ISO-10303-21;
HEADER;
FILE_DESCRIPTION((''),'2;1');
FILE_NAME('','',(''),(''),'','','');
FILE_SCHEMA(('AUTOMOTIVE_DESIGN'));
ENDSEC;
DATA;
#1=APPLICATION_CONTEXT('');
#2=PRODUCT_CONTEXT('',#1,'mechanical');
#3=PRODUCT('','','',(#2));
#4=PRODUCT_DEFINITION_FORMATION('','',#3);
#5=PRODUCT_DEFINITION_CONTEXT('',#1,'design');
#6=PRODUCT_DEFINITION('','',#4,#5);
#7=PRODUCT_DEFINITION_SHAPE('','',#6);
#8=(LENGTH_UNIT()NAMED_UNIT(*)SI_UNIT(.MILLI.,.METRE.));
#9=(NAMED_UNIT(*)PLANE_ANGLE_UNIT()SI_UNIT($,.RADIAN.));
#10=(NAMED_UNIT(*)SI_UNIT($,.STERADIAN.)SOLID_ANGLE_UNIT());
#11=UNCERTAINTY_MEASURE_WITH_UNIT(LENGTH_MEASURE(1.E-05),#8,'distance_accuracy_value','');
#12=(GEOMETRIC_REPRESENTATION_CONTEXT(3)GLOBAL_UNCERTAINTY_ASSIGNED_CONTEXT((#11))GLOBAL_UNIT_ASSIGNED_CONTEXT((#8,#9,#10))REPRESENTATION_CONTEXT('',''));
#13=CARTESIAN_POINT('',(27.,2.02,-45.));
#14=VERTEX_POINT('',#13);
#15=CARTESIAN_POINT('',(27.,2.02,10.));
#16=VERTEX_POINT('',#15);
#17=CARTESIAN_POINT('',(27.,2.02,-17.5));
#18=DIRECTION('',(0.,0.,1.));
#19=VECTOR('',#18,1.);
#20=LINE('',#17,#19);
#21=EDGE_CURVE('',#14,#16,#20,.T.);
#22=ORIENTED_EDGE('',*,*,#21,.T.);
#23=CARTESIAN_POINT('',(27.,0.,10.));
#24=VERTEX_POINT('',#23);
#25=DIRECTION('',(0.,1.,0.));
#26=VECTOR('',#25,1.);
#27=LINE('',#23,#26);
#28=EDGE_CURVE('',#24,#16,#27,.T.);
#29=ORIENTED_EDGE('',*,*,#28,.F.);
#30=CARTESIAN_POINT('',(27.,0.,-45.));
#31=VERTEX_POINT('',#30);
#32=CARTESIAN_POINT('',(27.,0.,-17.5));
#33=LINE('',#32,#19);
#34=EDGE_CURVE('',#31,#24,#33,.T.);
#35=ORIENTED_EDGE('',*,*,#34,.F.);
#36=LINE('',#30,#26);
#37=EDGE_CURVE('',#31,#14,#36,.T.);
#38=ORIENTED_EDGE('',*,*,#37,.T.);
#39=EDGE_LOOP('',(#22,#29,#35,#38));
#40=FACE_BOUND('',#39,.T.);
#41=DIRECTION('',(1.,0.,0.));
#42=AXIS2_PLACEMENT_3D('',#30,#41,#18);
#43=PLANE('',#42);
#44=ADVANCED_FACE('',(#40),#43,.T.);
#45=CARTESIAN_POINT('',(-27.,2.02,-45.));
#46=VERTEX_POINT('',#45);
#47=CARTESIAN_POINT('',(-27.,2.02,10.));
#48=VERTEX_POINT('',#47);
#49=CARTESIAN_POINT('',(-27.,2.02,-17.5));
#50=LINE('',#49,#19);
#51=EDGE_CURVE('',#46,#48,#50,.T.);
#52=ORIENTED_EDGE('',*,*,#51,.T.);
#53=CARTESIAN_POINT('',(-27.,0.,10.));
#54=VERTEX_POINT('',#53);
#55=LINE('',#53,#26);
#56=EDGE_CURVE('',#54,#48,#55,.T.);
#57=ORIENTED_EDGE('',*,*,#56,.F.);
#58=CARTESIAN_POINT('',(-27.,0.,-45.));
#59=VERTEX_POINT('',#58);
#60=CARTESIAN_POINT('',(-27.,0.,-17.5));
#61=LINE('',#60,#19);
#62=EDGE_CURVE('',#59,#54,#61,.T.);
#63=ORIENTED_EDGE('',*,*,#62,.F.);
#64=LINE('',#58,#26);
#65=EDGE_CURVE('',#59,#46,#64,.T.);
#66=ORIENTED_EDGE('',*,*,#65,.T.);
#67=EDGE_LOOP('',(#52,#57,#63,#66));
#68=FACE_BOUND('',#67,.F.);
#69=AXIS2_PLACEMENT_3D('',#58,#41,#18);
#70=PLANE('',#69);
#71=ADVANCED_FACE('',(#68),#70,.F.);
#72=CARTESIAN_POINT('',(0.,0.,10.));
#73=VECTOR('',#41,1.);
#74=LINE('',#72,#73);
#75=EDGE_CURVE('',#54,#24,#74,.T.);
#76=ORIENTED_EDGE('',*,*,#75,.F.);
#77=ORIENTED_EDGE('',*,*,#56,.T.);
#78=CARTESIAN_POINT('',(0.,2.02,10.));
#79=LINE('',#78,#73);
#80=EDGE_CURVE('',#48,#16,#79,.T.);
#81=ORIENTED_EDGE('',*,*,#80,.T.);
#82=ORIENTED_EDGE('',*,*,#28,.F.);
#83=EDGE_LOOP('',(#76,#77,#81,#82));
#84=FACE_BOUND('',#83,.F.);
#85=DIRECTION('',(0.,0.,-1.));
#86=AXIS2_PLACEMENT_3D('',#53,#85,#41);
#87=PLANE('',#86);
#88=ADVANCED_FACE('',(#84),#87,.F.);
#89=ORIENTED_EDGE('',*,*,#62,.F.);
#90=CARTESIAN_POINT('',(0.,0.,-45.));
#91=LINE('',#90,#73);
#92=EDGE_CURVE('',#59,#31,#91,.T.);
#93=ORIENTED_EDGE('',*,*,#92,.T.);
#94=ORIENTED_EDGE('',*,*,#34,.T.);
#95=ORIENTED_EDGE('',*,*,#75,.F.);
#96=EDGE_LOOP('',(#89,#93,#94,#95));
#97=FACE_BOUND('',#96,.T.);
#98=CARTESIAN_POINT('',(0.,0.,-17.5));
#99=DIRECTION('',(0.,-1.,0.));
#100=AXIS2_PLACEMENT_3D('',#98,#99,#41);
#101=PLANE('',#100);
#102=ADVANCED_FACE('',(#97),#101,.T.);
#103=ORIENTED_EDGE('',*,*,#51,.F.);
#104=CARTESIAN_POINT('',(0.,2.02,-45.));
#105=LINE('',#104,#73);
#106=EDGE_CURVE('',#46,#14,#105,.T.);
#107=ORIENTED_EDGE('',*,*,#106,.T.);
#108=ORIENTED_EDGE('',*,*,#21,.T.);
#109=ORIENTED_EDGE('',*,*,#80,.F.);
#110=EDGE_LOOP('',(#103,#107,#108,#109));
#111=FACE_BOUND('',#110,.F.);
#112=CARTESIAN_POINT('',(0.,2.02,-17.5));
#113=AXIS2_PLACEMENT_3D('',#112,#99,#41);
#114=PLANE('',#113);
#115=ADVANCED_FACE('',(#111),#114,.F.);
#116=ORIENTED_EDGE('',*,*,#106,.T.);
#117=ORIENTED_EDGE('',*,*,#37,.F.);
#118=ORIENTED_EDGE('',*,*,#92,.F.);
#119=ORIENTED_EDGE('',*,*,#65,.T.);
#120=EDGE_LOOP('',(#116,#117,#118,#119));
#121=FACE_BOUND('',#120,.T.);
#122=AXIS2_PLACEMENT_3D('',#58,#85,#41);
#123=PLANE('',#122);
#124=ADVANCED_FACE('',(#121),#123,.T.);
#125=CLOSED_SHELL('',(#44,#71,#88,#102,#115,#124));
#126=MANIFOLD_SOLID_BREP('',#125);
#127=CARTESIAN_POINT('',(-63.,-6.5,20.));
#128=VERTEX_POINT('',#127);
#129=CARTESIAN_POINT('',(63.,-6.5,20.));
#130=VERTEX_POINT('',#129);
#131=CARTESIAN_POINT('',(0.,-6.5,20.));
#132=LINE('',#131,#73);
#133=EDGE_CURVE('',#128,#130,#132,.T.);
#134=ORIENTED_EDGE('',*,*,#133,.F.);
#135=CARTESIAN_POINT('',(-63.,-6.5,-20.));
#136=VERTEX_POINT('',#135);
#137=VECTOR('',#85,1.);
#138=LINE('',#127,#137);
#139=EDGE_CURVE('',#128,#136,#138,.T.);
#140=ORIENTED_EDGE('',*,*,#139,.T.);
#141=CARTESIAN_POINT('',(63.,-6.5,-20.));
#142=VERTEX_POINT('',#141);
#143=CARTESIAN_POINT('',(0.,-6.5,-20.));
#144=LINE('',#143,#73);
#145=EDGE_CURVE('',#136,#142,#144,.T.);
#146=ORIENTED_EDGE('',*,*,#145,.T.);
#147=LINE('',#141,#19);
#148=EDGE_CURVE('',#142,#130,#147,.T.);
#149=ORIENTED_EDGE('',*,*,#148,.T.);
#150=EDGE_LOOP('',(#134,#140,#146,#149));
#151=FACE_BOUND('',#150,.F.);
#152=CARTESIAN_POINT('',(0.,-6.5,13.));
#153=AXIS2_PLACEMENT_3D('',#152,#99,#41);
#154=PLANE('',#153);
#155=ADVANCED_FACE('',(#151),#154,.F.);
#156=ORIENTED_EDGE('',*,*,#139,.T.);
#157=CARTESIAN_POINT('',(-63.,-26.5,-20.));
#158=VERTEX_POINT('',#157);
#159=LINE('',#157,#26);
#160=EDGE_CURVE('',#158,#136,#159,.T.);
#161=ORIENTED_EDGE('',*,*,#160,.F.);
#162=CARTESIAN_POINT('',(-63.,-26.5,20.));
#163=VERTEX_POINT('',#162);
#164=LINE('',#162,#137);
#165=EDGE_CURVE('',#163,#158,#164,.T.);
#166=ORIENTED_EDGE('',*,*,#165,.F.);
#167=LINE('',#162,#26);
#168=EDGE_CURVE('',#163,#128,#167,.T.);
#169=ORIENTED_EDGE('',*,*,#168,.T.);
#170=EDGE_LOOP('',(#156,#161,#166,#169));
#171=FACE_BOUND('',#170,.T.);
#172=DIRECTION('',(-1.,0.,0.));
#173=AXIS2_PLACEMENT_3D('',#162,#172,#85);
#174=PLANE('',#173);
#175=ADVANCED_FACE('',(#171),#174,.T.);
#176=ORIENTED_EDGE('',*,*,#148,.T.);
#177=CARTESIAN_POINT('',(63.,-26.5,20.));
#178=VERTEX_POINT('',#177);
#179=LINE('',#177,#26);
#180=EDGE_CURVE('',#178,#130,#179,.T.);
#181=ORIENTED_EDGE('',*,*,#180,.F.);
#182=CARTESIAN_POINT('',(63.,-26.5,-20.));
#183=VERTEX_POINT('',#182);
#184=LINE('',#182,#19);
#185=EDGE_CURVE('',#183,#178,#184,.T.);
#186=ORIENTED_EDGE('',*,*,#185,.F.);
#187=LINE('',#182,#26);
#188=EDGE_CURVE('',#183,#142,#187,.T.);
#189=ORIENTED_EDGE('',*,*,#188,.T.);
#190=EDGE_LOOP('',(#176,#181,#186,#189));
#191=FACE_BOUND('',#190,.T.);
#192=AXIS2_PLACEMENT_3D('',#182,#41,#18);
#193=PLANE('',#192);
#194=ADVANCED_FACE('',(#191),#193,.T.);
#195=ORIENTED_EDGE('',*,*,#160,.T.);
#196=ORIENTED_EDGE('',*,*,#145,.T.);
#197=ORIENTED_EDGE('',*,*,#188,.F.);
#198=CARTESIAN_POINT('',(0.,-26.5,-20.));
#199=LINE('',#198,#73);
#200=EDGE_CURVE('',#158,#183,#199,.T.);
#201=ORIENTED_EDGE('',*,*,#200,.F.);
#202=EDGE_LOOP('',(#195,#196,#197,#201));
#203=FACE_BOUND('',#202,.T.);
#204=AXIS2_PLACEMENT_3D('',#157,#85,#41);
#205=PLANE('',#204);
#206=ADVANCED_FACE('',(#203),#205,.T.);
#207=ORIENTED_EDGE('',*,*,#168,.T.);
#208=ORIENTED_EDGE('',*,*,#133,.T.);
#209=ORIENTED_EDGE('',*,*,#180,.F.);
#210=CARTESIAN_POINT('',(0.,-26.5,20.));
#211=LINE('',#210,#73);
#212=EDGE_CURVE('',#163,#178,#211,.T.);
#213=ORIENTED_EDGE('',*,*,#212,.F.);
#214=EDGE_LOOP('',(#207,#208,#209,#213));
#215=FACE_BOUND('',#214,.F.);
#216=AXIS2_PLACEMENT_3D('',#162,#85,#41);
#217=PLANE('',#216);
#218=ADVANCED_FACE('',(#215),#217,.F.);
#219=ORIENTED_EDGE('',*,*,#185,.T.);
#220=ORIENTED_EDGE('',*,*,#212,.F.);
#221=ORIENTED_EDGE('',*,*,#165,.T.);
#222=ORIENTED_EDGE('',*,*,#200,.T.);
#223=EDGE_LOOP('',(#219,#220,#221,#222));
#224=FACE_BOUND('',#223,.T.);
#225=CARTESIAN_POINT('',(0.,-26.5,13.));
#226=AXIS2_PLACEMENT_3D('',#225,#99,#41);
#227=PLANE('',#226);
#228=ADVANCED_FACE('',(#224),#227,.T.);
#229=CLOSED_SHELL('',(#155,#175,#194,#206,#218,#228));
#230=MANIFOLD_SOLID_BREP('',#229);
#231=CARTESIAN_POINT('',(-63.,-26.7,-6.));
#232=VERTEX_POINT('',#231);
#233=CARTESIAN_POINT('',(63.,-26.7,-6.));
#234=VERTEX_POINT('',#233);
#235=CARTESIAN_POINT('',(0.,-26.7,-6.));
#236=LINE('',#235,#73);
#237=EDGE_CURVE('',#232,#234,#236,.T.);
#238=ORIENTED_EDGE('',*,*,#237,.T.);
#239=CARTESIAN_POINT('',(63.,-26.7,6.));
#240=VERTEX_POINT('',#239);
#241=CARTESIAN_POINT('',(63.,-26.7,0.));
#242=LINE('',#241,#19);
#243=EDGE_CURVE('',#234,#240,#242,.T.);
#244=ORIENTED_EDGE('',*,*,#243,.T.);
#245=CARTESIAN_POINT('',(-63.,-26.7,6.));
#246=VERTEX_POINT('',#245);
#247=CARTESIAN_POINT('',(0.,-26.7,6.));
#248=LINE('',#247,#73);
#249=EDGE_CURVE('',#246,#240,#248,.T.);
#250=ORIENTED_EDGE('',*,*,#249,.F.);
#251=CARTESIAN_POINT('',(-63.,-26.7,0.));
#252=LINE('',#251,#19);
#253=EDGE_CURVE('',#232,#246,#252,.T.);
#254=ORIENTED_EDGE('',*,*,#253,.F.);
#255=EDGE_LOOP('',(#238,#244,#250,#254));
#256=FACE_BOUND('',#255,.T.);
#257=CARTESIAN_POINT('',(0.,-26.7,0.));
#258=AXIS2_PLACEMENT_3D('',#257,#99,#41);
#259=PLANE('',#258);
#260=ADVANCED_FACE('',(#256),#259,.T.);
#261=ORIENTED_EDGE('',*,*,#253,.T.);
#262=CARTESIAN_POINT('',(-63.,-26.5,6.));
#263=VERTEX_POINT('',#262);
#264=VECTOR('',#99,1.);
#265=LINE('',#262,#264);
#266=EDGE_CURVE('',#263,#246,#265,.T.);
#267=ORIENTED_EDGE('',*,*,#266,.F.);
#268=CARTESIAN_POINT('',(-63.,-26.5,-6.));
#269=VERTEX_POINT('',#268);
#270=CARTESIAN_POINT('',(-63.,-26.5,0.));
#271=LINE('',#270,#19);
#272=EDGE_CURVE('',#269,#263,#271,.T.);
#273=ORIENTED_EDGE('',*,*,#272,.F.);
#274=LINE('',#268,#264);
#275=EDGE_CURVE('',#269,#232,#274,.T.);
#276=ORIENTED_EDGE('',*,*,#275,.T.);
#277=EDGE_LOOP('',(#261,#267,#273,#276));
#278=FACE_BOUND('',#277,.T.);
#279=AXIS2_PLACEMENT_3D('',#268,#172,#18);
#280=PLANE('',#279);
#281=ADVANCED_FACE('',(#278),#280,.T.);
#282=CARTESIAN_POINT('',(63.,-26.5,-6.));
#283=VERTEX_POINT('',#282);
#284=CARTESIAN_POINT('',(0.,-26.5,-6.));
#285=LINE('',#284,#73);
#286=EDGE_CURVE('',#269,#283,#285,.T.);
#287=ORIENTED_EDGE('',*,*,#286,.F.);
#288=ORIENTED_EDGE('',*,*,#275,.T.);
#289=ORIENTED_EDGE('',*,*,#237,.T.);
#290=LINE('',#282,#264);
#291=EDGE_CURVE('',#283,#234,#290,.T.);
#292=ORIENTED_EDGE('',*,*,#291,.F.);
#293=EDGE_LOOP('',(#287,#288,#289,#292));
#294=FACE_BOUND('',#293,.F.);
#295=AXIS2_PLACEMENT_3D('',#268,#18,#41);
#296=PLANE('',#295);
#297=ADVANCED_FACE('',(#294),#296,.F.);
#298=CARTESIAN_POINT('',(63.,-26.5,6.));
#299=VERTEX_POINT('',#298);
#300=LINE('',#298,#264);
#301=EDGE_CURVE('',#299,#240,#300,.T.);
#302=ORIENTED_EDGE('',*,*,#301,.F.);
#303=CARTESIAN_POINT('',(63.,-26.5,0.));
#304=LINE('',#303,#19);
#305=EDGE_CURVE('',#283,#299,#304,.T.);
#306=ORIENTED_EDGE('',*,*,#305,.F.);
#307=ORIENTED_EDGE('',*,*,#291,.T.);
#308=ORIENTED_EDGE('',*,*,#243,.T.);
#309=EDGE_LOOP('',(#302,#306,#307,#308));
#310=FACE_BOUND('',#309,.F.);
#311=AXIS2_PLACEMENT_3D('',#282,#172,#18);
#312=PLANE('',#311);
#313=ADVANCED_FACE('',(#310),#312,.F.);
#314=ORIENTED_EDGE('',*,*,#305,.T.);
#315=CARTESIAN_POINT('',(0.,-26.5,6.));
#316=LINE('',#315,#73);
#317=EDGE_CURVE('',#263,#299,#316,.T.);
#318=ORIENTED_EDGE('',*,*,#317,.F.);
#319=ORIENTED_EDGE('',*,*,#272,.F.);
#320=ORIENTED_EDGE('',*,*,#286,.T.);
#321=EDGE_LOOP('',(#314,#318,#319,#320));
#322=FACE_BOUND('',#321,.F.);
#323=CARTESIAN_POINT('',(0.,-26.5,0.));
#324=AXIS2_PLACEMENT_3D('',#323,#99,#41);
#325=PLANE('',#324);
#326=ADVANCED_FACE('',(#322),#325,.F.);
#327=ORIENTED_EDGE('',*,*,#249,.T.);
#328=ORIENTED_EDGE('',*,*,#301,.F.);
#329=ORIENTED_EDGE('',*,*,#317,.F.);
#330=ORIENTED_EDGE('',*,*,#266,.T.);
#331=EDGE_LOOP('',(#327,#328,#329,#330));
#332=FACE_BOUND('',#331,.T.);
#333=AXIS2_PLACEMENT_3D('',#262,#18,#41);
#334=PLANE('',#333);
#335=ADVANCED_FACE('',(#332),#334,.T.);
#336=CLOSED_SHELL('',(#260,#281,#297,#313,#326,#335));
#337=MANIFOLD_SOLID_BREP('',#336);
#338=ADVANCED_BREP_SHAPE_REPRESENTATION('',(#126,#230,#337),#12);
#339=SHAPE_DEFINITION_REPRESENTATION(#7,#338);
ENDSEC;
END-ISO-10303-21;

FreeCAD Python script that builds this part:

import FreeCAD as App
import Part
import Sketcher
from FreeCAD import Vector

doc = App.newDocument("Part")
body = doc.addObject("PartDesign::Body", "Body")

sketch1 = body.newObject("Sketcher::SketchObject", "Sketch")
sketch1.AttachmentSupport = (doc.getObject("XZ_Plane"), [""])
sketch1.MapMode = "FlatFace"
sketch1.addGeometry([
    Part.LineSegment(Vector(-27, 10, 0), Vector(-27, -45, 0)),
    Part.LineSegment(Vector(-27, -45, 0), Vector(27, -45, 0)),
    Part.LineSegment(Vector(27, -45, 0), Vector(27, 10, 0)),
    Part.LineSegment(Vector(27, 10, 0), Vector(-27, 10, 0)),
], False)
sketch1.addConstraint([
    Sketcher.Constraint("Coincident", 0, 2, 1, 1),
    Sketcher.Constraint("Coincident", 1, 2, 2, 1),
    Sketcher.Constraint("Coincident", 2, 2, 3, 1),
    Sketcher.Constraint("Coincident", 3, 2, 0, 1),
    Sketcher.Constraint("Vertical", 0),
    Sketcher.Constraint("Horizontal", 1),
    Sketcher.Constraint("Vertical", 2),
    Sketcher.Constraint("Horizontal", 3),
    Sketcher.Constraint("DistanceX", 1, 1, 1, 2, 54.0),
    Sketcher.Constraint("DistanceY", 0, 2, 0, 1, 55.0),
    Sketcher.Constraint("DistanceX", 0, 2, -1, 1, 27.0),
    Sketcher.Constraint("DistanceY", 0, 2, -1, 1, 45.0),
])
pad1 = body.newObject("PartDesign::Pad", "Pad")
pad1.Profile = sketch1
pad1.Length = 2.02
pad1.Reversed = True
body2 = doc.addObject("PartDesign::Body", "Body001")

sketch2 = body2.newObject("Sketcher::SketchObject", "Sketch001")
sketch2.AttachmentSupport = (doc.getObject("XZ_Plane001"), [""])
sketch2.MapMode = "FlatFace"
sketch2.AttachmentOffset = App.Placement(Vector(0, 0, 26.5), App.Rotation())
sketch2.addGeometry([
    Part.LineSegment(Vector(-63, 20, 0), Vector(-63, -20, 0)),
    Part.LineSegment(Vector(-63, -20, 0), Vector(63, -20, 0)),
    Part.LineSegment(Vector(63, -20, 0), Vector(63, 20, 0)),
    Part.LineSegment(Vector(63, 20, 0), Vector(-63, 20, 0)),
], False)
sketch2.addConstraint([
    Sketcher.Constraint("Coincident", 0, 2, 1, 1),
    Sketcher.Constraint("Coincident", 1, 2, 2, 1),
    Sketcher.Constraint("Coincident", 2, 2, 3, 1),
    Sketcher.Constraint("Coincident", 3, 2, 0, 1),
    Sketcher.Constraint("Vertical", 0),
    Sketcher.Constraint("Horizontal", 1),
    Sketcher.Constraint("Vertical", 2),
    Sketcher.Constraint("Horizontal", 3),
    Sketcher.Constraint("Symmetric", 0, 2, 2, 2, -1, 1),
    Sketcher.Constraint("DistanceX", 1, 1, 1, 2, 126.0),
    Sketcher.Constraint("DistanceY", 0, 2, 0, 1, 40.0),
])
pad2 = body2.newObject("PartDesign::Pad", "Pad001")
pad2.Profile = sketch2
pad2.Length = 20
pad2.Reversed = True
body3 = doc.addObject("PartDesign::Body", "Body002")

sketch3 = body3.newObject("Sketcher::SketchObject", "Sketch002")
sketch3.AttachmentSupport = (doc.getObject("XZ_Plane002"), [""])
sketch3.MapMode = "FlatFace"
sketch3.AttachmentOffset = App.Placement(Vector(0, 0, 26.5), App.Rotation())
sketch3.addGeometry([
    Part.LineSegment(Vector(-63, 6, 0), Vector(-63, -6, 0)),
    Part.LineSegment(Vector(-63, -6, 0), Vector(63, -6, 0)),
    Part.LineSegment(Vector(63, -6, 0), Vector(63, 6, 0)),
    Part.LineSegment(Vector(63, 6, 0), Vector(-63, 6, 0)),
], False)
sketch3.addConstraint([
    Sketcher.Constraint("Coincident", 0, 2, 1, 1),
    Sketcher.Constraint("Coincident", 1, 2, 2, 1),
    Sketcher.Constraint("Coincident", 2, 2, 3, 1),
    Sketcher.Constraint("Coincident", 3, 2, 0, 1),
    Sketcher.Constraint("Vertical", 0),
    Sketcher.Constraint("Horizontal", 1),
    Sketcher.Constraint("Vertical", 2),
    Sketcher.Constraint("Horizontal", 3),
    Sketcher.Constraint("Symmetric", 0, 2, 2, 2, -1, 1),
    Sketcher.Constraint("DistanceX", 1, 1, 1, 2, 126.0),
    Sketcher.Constraint("DistanceY", 0, 2, 0, 1, 12.0),
])
pad3 = body3.newObject("PartDesign::Pad", "Pad002")
pad3.Profile = sketch3
pad3.Length = 0.2

doc.recompute()
